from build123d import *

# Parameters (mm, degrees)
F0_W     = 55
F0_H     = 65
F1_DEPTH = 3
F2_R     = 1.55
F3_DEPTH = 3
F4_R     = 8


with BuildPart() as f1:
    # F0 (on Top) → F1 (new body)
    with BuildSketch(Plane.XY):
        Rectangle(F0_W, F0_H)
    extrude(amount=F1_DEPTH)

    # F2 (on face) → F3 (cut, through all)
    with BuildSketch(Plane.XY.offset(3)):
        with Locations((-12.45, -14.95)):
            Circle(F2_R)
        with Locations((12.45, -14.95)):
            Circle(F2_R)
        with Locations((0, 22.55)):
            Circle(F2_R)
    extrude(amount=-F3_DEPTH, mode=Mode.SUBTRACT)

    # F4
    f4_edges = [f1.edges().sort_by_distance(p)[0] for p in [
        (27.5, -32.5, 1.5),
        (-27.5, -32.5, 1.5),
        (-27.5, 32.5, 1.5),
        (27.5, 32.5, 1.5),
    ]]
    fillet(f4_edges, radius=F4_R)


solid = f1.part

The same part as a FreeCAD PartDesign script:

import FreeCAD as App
import Part
import Sketcher


def edges_at(feature, points):
    """Names of the edges that pass closest to the given points."""
    edges = feature.Shape.Edges
    near = lambda p: min(range(len(edges)), key=lambda i: edges[i].distToShape(Part.Vertex(*p))[0])
    return sorted({f"Edge{near(p) + 1}" for p in points})


def add_polygon(sketch, points):
    """Adds a closed chain of lines whose ends are joined by coincident constraints."""
    first, n = sketch.GeometryCount, len(points)
    for a, b in zip(points, points[1:] + points[:1]):
        sketch.addGeometry(Part.LineSegment(App.Vector(*a, 0), App.Vector(*b, 0)), False)
    for i in range(n):
        sketch.addConstraint(Sketcher.Constraint("Coincident", first + i, 2, first + (i + 1) % n, 1))

doc = App.newDocument("Part")
body = doc.addObject("PartDesign::Body", "Body")

sketch1 = doc.addObject("Sketcher::SketchObject", "Sketch")
body.addObject(sketch1)
sketch1.AttachmentSupport = (doc.XY_Plane, [""])
sketch1.MapMode = "FlatFace"
add_polygon(sketch1, [(-28, 32), (-28, -32), (28, -32), (28, 32)])
sketch1.addConstraint([
    Sketcher.Constraint("Vertical", 0),
    Sketcher.Constraint("Horizontal", 1),
    Sketcher.Constraint("Vertical", 2),
    Sketcher.Constraint("Horizontal", 3),
    Sketcher.Constraint("Symmetric", 0, 2, 2, 2, -1, 1),
    Sketcher.Constraint("DistanceX", 1, 1, 1, 2, 55.0),
    Sketcher.Constraint("DistanceY", 0, 2, 0, 1, 65.0),
])
pad1 = doc.addObject("PartDesign::Pad", "Pad")
body.addObject(pad1)
pad1.Profile = sketch1
pad1.Length = 3

sketch2 = doc.addObject("Sketcher::SketchObject", "Sketch001")
body.addObject(sketch2)
sketch2.AttachmentSupport = (doc.XY_Plane, [""])
sketch2.MapMode = "FlatFace"
sketch2.AttachmentOffset = App.Placement(App.Vector(0, 0, 3), App.Rotation())
sketch2.addGeometry([
    Part.Circle(App.Vector(-12.4, -14.9, 0), App.Vector(0, 0, 1), 1.6),
    Part.Circle(App.Vector(12.4, -14.9, 0), App.Vector(0, 0, 1), 1.6),
    Part.Circle(App.Vector(0, 22.6, 0), App.Vector(0, 0, 1), 1.6),
], False)
sketch2.addConstraint([
    Sketcher.Constraint("Equal", 0, 1),
    Sketcher.Constraint("Equal", 1, 2),
    Sketcher.Constraint("Symmetric", 0, 3, 1, 3, -2),
    Sketcher.Constraint("PointOnObject", 2, 3, -2),
    Sketcher.Constraint("Diameter", 0, 3.1),
    Sketcher.Constraint("DistanceX", 0, 3, 1, 3, 24.9),
    Sketcher.Constraint("DistanceY", 0, 3, 2, 3, 37.5),
    Sketcher.Constraint("DistanceY", 0, 3, -1, 1, 14.95),
])
pocket1 = doc.addObject("PartDesign::Pocket", "Pocket")
body.addObject(pocket1)
pocket1.Profile = sketch2
pocket1.Type = "ThroughAll"
doc.recompute()

fillet = doc.addObject("PartDesign::Fillet", "Fillet")
body.addObject(fillet)
fillet.Base = (pocket1, edges_at(pocket1, [
    (27.5, -32.5, 1.5),
    (-27.5, -32.5, 1.5),
    (-27.5, 32.5, 1.5),
    (27.5, 32.5, 1.5),
]))
fillet.Radius = 8

doc.recompute()
